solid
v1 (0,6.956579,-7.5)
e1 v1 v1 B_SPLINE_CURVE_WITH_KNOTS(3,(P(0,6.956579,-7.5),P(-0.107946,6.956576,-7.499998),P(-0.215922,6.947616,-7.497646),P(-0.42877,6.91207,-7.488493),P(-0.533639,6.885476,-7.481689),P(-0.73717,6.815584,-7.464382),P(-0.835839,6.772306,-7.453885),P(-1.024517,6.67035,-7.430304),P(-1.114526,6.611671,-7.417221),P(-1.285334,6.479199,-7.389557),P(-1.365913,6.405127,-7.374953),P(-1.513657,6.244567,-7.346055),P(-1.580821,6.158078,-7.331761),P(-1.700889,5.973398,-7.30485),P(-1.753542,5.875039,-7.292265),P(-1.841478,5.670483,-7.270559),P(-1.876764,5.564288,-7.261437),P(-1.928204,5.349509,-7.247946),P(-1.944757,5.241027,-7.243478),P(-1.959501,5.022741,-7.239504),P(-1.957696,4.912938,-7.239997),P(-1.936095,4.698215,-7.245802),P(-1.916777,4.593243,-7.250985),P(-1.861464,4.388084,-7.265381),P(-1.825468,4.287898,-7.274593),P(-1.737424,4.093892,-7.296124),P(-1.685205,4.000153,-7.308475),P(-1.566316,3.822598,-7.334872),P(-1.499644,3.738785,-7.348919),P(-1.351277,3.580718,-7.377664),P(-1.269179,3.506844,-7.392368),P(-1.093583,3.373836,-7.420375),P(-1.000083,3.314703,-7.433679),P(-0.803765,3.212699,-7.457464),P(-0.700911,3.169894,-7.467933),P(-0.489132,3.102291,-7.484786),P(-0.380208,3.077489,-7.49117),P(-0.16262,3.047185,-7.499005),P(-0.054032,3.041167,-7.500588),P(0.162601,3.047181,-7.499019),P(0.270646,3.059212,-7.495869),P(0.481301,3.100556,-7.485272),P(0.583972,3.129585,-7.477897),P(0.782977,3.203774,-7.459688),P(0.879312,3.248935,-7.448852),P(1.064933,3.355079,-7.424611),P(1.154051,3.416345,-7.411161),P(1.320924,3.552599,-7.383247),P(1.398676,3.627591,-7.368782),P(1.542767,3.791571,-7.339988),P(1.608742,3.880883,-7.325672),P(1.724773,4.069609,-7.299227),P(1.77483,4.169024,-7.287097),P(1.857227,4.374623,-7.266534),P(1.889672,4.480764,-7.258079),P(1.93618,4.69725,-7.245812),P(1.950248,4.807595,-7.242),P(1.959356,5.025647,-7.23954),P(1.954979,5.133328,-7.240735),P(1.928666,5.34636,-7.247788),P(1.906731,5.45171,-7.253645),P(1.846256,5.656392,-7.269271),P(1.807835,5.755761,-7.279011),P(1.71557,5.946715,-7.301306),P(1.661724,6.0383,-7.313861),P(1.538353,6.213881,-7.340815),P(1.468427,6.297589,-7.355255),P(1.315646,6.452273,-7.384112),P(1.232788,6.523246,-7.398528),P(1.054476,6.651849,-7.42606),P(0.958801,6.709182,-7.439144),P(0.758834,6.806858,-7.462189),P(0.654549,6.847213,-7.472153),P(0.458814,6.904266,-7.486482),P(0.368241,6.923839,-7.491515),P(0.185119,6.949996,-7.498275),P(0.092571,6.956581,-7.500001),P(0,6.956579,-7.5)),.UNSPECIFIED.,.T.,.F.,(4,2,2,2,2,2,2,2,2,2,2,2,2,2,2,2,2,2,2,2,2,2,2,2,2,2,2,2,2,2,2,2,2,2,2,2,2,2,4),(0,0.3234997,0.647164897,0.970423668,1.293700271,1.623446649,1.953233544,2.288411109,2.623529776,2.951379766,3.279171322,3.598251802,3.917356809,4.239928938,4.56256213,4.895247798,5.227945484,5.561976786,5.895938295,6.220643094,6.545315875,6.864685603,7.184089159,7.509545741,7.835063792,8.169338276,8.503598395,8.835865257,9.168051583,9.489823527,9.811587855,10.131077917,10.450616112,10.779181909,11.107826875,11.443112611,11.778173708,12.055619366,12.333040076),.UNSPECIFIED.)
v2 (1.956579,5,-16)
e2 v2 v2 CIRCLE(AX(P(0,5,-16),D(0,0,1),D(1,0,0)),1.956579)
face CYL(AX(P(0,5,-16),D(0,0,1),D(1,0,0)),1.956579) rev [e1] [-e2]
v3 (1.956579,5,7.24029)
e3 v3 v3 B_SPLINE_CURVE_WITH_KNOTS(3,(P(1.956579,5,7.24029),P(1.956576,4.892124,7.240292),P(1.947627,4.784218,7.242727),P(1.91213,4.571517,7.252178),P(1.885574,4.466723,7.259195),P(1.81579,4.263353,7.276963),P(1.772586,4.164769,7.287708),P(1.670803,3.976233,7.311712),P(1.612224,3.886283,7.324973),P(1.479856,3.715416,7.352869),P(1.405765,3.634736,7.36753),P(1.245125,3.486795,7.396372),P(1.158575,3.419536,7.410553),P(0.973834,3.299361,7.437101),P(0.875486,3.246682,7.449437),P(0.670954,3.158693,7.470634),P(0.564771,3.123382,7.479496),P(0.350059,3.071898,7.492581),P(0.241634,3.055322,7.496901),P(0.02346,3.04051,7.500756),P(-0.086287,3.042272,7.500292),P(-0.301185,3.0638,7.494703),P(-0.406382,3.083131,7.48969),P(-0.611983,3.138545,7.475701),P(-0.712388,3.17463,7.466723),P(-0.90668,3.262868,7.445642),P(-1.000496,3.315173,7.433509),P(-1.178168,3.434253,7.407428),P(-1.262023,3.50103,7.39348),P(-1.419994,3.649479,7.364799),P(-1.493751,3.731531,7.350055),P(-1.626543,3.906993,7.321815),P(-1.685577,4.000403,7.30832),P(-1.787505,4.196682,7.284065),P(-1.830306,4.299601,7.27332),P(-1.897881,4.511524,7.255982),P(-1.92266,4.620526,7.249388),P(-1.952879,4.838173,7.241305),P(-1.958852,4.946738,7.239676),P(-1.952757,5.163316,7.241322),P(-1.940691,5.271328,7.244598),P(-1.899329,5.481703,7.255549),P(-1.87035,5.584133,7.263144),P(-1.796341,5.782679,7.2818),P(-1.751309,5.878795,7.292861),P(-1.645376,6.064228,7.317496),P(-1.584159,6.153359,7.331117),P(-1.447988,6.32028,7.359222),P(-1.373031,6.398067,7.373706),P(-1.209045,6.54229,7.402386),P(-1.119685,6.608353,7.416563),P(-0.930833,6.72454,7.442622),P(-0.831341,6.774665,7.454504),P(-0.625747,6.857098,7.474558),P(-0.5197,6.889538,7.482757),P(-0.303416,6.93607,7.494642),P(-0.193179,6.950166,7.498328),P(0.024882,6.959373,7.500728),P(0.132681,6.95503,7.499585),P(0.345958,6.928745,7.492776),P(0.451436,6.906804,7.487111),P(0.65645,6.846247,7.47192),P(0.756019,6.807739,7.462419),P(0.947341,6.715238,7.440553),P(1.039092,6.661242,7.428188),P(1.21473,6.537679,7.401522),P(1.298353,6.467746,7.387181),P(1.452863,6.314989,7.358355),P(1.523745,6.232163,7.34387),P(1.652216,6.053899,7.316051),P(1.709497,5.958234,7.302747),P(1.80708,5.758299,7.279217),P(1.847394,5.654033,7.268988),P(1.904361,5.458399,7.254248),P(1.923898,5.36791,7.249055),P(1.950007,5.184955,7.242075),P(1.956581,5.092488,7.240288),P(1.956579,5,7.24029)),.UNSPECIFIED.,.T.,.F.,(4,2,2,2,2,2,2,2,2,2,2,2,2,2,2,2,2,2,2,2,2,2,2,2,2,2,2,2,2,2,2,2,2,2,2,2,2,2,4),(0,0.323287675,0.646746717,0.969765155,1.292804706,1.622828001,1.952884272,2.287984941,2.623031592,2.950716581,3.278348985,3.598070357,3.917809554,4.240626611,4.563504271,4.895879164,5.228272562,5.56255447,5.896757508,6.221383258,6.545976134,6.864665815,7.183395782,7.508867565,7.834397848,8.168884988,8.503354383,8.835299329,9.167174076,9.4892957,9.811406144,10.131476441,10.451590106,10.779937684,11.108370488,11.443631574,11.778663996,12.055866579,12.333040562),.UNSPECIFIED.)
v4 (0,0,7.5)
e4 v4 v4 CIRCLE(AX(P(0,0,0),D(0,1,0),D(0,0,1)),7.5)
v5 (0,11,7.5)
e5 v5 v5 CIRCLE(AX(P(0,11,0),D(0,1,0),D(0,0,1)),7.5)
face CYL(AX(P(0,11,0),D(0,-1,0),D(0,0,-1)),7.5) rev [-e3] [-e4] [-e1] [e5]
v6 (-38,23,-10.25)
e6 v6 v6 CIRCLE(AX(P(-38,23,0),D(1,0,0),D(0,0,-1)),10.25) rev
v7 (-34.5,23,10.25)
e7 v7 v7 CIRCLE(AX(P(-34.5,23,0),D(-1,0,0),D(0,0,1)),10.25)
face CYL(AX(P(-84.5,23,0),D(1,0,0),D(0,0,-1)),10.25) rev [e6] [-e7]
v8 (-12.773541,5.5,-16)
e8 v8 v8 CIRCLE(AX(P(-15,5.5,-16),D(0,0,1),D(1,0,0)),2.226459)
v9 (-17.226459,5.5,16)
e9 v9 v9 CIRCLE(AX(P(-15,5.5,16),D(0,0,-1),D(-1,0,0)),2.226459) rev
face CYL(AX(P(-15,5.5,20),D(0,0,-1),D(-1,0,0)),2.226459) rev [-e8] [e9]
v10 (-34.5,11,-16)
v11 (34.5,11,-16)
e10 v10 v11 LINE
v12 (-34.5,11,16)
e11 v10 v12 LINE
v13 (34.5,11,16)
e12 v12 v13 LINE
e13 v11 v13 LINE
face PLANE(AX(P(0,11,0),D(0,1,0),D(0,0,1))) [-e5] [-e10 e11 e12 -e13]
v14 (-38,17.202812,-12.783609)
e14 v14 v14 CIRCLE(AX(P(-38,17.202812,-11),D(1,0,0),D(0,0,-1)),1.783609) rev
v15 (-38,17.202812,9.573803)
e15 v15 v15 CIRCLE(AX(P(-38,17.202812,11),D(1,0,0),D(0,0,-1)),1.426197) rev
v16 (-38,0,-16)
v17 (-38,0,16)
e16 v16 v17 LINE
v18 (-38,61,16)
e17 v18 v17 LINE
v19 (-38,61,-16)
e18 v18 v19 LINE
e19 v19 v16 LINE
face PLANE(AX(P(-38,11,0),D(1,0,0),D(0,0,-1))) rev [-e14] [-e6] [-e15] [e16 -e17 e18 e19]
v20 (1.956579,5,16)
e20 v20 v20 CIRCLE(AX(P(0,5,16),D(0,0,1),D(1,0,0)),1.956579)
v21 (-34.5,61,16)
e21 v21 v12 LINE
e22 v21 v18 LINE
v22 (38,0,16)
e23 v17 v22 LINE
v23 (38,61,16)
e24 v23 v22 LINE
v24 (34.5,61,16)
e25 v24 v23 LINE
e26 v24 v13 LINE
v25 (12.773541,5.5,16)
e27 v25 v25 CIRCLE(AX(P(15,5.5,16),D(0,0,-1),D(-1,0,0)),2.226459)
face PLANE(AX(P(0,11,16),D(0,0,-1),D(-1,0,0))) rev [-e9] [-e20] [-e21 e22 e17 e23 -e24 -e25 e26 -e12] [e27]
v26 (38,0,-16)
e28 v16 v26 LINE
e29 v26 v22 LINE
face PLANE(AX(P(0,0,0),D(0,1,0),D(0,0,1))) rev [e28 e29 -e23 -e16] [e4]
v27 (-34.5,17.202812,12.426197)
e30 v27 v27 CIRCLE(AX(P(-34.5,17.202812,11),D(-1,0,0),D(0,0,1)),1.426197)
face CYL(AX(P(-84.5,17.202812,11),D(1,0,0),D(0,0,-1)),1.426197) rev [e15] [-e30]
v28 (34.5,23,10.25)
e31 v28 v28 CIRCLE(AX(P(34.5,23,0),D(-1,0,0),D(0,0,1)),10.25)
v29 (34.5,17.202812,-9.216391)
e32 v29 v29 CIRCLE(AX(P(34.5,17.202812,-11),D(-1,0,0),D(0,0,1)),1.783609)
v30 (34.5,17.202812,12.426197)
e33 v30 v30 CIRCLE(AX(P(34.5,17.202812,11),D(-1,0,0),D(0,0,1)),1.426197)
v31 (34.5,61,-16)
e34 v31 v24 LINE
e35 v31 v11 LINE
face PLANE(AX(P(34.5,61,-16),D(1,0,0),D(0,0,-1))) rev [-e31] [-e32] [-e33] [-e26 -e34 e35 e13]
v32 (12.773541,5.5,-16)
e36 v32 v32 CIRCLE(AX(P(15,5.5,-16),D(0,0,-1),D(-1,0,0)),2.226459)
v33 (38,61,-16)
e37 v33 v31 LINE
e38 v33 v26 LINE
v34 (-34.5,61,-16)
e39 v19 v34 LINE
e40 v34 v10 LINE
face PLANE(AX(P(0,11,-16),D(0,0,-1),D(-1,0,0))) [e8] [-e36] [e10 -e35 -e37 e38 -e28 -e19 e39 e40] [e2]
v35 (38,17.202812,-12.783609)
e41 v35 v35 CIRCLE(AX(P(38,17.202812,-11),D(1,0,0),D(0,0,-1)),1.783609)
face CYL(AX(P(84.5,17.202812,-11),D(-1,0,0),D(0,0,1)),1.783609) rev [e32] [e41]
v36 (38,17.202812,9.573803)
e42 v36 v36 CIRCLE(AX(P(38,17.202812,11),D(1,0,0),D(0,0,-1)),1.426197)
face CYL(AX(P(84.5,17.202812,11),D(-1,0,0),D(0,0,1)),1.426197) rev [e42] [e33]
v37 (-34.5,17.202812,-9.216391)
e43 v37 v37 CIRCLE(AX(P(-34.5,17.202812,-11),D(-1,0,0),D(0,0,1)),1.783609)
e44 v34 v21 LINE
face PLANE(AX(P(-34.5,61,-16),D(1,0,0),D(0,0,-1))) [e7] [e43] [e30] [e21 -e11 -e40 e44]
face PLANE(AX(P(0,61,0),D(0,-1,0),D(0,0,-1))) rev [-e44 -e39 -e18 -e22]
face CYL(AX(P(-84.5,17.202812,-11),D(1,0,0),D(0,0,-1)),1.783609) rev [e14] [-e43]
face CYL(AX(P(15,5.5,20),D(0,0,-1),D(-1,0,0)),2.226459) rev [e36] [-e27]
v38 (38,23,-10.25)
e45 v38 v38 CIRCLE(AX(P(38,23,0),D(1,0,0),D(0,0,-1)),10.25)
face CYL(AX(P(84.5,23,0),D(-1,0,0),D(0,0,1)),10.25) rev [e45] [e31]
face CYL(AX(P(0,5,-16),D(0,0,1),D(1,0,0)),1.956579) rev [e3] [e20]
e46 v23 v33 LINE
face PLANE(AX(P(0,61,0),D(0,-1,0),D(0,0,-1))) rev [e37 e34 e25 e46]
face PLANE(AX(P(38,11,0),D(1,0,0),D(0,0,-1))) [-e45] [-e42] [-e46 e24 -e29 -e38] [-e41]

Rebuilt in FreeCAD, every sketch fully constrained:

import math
import FreeCAD as App
import Part
import Sketcher

V = App.Vector
Q = App.Units.Quantity

doc = App.newDocument("Part")
body = doc.addObject("PartDesign::Body", "Body")

# Sketch on XZ plane
sketch1 = body.newObject("Sketcher::SketchObject", "Sketch")
sketch1.AttachmentSupport = (doc.getObject("XZ_Plane"), [""])
sketch1.MapMode = "FlatFace"
sketch1.addGeometry([
    Part.LineSegment(V(38, -16, 0), V(0, -16, 0)),  # 0
    Part.LineSegment(V(0, -16, 0), V(0, -8, 0)),  # 1
    Part.ArcOfCircle(Part.Circle(V(0, 0, 0), V(0, 0, 1), 8), math.radians(-90), math.radians(0)),  # 2
    Part.ArcOfCircle(Part.Circle(V(0, 0, 0), V(0, 0, 1), 8), math.radians(0), math.radians(90)),  # 3
    Part.LineSegment(V(0, 8, 0), V(0, 16, 0)),  # 4
    Part.LineSegment(V(0, 16, 0), V(38, 16, 0)),  # 5
    Part.LineSegment(V(38, 16, 0), V(38, -16, 0)),  # 6
], False)
sketch1.addConstraint([
    Sketcher.Constraint("Coincident", 0, 2, 1, 1),
    Sketcher.Constraint("Coincident", 1, 2, 2, 1),
    Sketcher.Constraint("Tangent", 2, 2, 3, 1),
    Sketcher.Constraint("Coincident", 3, 2, 4, 1),
    Sketcher.Constraint("Coincident", 4, 2, 5, 1),
    Sketcher.Constraint("Coincident", 5, 2, 6, 1),
    Sketcher.Constraint("Coincident", 6, 2, 0, 1),
    Sketcher.Constraint("Horizontal", 0),
    Sketcher.Constraint("Vertical", 1),
    Sketcher.Constraint("Vertical", 4),
    Sketcher.Constraint("Horizontal", 5),
    Sketcher.Constraint("Vertical", 6),
    Sketcher.Constraint("Coincident", 2, 3, -1, 1),
    Sketcher.Constraint("Equal", 2, 3),
    Sketcher.Constraint("Symmetric", 0, 2, 4, 2, -1, 1),
    Sketcher.Constraint("PointOnObject", 0, 2, -2),
    Sketcher.Constraint("PointOnObject", 2, 2, -1),
    Sketcher.Constraint("Radius", 2, Q("7.5 mm")),
    Sketcher.Constraint("DistanceX", 0, 2, 0, 1, Q("38 mm")),
    Sketcher.Constraint("DistanceY", 6, 2, 6, 1, Q("32 mm")),
])
pad1 = body.newObject("PartDesign::Pad", "Pad")
pad1.Profile = sketch1
pad1.Length = 11
pad1.Reversed = True

# Sketch on XZ plane
sketch2 = body.newObject("Sketcher::SketchObject", "Sketch001")
sketch2.AttachmentSupport = (doc.getObject("XZ_Plane"), [""])
sketch2.MapMode = "FlatFace"
sketch2.AttachmentOffset = App.Placement(V(0, 0, -11), App.Rotation())
sketch2.addGeometry([
    Part.LineSegment(V(34.5, -16, 0), V(34.5, 16, 0)),
    Part.LineSegment(V(34.5, 16, 0), V(38, 16, 0)),
    Part.LineSegment(V(38, 16, 0), V(38, -16, 0)),
    Part.LineSegment(V(38, -16, 0), V(34.5, -16, 0)),
], False)
sketch2.addConstraint([
    Sketcher.Constraint("Coincident", 0, 2, 1, 1),
    Sketcher.Constraint("Coincident", 1, 2, 2, 1),
    Sketcher.Constraint("Coincident", 2, 2, 3, 1),
    Sketcher.Constraint("Coincident", 3, 2, 0, 1),
    Sketcher.Constraint("Vertical", 0),
    Sketcher.Constraint("Horizontal", 1),
    Sketcher.Constraint("Vertical", 2),
    Sketcher.Constraint("Horizontal", 3),
    Sketcher.Constraint("DistanceY", 0, 1, 0, 2, Q("32 mm")),
    Sketcher.Constraint("DistanceX", 1, 1, 1, 2, Q("3.5 mm")),
    Sketcher.Constraint("DistanceY", -1, 1, 0, 2, Q("16 mm")),
    Sketcher.Constraint("DistanceX", -1, 1, 1, 2, Q("38 mm")),
])
pad2 = body.newObject("PartDesign::Pad", "Pad001")
pad2.Profile = sketch2
pad2.Length = 50
pad2.Reversed = True

# Sketch on YZ plane
sketch3 = body.newObject("Sketcher::SketchObject", "Sketch002")
sketch3.AttachmentSupport = (doc.getObject("YZ_Plane"), [""])
sketch3.MapMode = "FlatFace"
sketch3.AttachmentOffset = App.Placement(V(0, 0, 34.5), App.Rotation())
sketch3.addGeometry([
    Part.Circle(V(23, 0, 0), V(0, 0, 1), 10.2),
    Part.Circle(V(17.2, -11, 0), V(0, 0, 1), 1.8),
    Part.Circle(V(17.2, 11, 0), V(0, 0, 1), 1.4),
], False)
sketch3.addConstraint([
    Sketcher.Constraint("Symmetric", 1, 3, 2, 3, -1),
    Sketcher.Constraint("PointOnObject", 0, 3, -1),
    Sketcher.Constraint("Diameter", 0, Q("20.5 mm")),
    Sketcher.Constraint("DistanceX", -1, 1, 0, 3, Q("23 mm")),
    Sketcher.Constraint("DistanceY", 1, 3, -1, 1, Q("11 mm")),
    Sketcher.Constraint("Diameter", 1, Q("3.567219 mm")),
    Sketcher.Constraint("Diameter", 2, Q("2.852394 mm")),
    Sketcher.Constraint("DistanceX", -1, 1, 1, 3, Q("17.202812 mm")),
])
pocket1 = body.newObject("PartDesign::Pocket", "Pocket")
pocket1.Profile = sketch3
pocket1.Length = 50
pocket1.Reversed = True

# Sketch on XY plane
sketch4 = body.newObject("Sketcher::SketchObject", "Sketch003")
sketch4.AttachmentSupport = (doc.getObject("XY_Plane"), [""])
sketch4.MapMode = "FlatFace"
sketch4.AttachmentOffset = App.Placement(V(0, 0, -16), App.Rotation())
sketch4.addGeometry(Part.Circle(V(15, 5.5, 0), V(0, 0, 1), 2.2), False)
sketch4.addConstraint([
    Sketcher.Constraint("DistanceX", -1, 1, 0, 3, Q("15 mm")),
    Sketcher.Constraint("DistanceY", -1, 1, 0, 3, Q("5.5 mm")),
    Sketcher.Constraint("Diameter", 0, Q("4.452919 mm")),
])
pocket2 = body.newObject("PartDesign::Pocket", "Pocket001")
pocket2.Profile = sketch4
pocket2.Length = 36
pocket2.Reversed = True
doc.recompute()

mirrored = body.newObject("PartDesign::Mirrored", "Mirrored")
mirrored.Originals = [pad1, pad2, pocket1, pocket2]
mirrored.MirrorPlane = (doc.getObject("YZ_Plane"), [""])
body.Tip = mirrored

# Sketch on XY plane
sketch5 = body.newObject("Sketcher::SketchObject", "Sketch004")
sketch5.AttachmentSupport = (doc.getObject("XY_Plane"), [""])
sketch5.MapMode = "FlatFace"
sketch5.AttachmentOffset = App.Placement(V(0, 0, 16), App.Rotation())
sketch5.addGeometry(Part.Circle(V(0, 5, 0), V(0, 0, 1), 2), False)
sketch5.addConstraint([
    Sketcher.Constraint("PointOnObject", 0, 3, -2),
    Sketcher.Constraint("DistanceY", -1, 1, 0, 3, Q("5 mm")),
    Sketcher.Constraint("Diameter", 0, Q("3.913158 mm")),
])
pocket3 = body.newObject("PartDesign::Pocket", "Pocket002")
pocket3.Profile = sketch5
pocket3.Length = 32

doc.recompute()
